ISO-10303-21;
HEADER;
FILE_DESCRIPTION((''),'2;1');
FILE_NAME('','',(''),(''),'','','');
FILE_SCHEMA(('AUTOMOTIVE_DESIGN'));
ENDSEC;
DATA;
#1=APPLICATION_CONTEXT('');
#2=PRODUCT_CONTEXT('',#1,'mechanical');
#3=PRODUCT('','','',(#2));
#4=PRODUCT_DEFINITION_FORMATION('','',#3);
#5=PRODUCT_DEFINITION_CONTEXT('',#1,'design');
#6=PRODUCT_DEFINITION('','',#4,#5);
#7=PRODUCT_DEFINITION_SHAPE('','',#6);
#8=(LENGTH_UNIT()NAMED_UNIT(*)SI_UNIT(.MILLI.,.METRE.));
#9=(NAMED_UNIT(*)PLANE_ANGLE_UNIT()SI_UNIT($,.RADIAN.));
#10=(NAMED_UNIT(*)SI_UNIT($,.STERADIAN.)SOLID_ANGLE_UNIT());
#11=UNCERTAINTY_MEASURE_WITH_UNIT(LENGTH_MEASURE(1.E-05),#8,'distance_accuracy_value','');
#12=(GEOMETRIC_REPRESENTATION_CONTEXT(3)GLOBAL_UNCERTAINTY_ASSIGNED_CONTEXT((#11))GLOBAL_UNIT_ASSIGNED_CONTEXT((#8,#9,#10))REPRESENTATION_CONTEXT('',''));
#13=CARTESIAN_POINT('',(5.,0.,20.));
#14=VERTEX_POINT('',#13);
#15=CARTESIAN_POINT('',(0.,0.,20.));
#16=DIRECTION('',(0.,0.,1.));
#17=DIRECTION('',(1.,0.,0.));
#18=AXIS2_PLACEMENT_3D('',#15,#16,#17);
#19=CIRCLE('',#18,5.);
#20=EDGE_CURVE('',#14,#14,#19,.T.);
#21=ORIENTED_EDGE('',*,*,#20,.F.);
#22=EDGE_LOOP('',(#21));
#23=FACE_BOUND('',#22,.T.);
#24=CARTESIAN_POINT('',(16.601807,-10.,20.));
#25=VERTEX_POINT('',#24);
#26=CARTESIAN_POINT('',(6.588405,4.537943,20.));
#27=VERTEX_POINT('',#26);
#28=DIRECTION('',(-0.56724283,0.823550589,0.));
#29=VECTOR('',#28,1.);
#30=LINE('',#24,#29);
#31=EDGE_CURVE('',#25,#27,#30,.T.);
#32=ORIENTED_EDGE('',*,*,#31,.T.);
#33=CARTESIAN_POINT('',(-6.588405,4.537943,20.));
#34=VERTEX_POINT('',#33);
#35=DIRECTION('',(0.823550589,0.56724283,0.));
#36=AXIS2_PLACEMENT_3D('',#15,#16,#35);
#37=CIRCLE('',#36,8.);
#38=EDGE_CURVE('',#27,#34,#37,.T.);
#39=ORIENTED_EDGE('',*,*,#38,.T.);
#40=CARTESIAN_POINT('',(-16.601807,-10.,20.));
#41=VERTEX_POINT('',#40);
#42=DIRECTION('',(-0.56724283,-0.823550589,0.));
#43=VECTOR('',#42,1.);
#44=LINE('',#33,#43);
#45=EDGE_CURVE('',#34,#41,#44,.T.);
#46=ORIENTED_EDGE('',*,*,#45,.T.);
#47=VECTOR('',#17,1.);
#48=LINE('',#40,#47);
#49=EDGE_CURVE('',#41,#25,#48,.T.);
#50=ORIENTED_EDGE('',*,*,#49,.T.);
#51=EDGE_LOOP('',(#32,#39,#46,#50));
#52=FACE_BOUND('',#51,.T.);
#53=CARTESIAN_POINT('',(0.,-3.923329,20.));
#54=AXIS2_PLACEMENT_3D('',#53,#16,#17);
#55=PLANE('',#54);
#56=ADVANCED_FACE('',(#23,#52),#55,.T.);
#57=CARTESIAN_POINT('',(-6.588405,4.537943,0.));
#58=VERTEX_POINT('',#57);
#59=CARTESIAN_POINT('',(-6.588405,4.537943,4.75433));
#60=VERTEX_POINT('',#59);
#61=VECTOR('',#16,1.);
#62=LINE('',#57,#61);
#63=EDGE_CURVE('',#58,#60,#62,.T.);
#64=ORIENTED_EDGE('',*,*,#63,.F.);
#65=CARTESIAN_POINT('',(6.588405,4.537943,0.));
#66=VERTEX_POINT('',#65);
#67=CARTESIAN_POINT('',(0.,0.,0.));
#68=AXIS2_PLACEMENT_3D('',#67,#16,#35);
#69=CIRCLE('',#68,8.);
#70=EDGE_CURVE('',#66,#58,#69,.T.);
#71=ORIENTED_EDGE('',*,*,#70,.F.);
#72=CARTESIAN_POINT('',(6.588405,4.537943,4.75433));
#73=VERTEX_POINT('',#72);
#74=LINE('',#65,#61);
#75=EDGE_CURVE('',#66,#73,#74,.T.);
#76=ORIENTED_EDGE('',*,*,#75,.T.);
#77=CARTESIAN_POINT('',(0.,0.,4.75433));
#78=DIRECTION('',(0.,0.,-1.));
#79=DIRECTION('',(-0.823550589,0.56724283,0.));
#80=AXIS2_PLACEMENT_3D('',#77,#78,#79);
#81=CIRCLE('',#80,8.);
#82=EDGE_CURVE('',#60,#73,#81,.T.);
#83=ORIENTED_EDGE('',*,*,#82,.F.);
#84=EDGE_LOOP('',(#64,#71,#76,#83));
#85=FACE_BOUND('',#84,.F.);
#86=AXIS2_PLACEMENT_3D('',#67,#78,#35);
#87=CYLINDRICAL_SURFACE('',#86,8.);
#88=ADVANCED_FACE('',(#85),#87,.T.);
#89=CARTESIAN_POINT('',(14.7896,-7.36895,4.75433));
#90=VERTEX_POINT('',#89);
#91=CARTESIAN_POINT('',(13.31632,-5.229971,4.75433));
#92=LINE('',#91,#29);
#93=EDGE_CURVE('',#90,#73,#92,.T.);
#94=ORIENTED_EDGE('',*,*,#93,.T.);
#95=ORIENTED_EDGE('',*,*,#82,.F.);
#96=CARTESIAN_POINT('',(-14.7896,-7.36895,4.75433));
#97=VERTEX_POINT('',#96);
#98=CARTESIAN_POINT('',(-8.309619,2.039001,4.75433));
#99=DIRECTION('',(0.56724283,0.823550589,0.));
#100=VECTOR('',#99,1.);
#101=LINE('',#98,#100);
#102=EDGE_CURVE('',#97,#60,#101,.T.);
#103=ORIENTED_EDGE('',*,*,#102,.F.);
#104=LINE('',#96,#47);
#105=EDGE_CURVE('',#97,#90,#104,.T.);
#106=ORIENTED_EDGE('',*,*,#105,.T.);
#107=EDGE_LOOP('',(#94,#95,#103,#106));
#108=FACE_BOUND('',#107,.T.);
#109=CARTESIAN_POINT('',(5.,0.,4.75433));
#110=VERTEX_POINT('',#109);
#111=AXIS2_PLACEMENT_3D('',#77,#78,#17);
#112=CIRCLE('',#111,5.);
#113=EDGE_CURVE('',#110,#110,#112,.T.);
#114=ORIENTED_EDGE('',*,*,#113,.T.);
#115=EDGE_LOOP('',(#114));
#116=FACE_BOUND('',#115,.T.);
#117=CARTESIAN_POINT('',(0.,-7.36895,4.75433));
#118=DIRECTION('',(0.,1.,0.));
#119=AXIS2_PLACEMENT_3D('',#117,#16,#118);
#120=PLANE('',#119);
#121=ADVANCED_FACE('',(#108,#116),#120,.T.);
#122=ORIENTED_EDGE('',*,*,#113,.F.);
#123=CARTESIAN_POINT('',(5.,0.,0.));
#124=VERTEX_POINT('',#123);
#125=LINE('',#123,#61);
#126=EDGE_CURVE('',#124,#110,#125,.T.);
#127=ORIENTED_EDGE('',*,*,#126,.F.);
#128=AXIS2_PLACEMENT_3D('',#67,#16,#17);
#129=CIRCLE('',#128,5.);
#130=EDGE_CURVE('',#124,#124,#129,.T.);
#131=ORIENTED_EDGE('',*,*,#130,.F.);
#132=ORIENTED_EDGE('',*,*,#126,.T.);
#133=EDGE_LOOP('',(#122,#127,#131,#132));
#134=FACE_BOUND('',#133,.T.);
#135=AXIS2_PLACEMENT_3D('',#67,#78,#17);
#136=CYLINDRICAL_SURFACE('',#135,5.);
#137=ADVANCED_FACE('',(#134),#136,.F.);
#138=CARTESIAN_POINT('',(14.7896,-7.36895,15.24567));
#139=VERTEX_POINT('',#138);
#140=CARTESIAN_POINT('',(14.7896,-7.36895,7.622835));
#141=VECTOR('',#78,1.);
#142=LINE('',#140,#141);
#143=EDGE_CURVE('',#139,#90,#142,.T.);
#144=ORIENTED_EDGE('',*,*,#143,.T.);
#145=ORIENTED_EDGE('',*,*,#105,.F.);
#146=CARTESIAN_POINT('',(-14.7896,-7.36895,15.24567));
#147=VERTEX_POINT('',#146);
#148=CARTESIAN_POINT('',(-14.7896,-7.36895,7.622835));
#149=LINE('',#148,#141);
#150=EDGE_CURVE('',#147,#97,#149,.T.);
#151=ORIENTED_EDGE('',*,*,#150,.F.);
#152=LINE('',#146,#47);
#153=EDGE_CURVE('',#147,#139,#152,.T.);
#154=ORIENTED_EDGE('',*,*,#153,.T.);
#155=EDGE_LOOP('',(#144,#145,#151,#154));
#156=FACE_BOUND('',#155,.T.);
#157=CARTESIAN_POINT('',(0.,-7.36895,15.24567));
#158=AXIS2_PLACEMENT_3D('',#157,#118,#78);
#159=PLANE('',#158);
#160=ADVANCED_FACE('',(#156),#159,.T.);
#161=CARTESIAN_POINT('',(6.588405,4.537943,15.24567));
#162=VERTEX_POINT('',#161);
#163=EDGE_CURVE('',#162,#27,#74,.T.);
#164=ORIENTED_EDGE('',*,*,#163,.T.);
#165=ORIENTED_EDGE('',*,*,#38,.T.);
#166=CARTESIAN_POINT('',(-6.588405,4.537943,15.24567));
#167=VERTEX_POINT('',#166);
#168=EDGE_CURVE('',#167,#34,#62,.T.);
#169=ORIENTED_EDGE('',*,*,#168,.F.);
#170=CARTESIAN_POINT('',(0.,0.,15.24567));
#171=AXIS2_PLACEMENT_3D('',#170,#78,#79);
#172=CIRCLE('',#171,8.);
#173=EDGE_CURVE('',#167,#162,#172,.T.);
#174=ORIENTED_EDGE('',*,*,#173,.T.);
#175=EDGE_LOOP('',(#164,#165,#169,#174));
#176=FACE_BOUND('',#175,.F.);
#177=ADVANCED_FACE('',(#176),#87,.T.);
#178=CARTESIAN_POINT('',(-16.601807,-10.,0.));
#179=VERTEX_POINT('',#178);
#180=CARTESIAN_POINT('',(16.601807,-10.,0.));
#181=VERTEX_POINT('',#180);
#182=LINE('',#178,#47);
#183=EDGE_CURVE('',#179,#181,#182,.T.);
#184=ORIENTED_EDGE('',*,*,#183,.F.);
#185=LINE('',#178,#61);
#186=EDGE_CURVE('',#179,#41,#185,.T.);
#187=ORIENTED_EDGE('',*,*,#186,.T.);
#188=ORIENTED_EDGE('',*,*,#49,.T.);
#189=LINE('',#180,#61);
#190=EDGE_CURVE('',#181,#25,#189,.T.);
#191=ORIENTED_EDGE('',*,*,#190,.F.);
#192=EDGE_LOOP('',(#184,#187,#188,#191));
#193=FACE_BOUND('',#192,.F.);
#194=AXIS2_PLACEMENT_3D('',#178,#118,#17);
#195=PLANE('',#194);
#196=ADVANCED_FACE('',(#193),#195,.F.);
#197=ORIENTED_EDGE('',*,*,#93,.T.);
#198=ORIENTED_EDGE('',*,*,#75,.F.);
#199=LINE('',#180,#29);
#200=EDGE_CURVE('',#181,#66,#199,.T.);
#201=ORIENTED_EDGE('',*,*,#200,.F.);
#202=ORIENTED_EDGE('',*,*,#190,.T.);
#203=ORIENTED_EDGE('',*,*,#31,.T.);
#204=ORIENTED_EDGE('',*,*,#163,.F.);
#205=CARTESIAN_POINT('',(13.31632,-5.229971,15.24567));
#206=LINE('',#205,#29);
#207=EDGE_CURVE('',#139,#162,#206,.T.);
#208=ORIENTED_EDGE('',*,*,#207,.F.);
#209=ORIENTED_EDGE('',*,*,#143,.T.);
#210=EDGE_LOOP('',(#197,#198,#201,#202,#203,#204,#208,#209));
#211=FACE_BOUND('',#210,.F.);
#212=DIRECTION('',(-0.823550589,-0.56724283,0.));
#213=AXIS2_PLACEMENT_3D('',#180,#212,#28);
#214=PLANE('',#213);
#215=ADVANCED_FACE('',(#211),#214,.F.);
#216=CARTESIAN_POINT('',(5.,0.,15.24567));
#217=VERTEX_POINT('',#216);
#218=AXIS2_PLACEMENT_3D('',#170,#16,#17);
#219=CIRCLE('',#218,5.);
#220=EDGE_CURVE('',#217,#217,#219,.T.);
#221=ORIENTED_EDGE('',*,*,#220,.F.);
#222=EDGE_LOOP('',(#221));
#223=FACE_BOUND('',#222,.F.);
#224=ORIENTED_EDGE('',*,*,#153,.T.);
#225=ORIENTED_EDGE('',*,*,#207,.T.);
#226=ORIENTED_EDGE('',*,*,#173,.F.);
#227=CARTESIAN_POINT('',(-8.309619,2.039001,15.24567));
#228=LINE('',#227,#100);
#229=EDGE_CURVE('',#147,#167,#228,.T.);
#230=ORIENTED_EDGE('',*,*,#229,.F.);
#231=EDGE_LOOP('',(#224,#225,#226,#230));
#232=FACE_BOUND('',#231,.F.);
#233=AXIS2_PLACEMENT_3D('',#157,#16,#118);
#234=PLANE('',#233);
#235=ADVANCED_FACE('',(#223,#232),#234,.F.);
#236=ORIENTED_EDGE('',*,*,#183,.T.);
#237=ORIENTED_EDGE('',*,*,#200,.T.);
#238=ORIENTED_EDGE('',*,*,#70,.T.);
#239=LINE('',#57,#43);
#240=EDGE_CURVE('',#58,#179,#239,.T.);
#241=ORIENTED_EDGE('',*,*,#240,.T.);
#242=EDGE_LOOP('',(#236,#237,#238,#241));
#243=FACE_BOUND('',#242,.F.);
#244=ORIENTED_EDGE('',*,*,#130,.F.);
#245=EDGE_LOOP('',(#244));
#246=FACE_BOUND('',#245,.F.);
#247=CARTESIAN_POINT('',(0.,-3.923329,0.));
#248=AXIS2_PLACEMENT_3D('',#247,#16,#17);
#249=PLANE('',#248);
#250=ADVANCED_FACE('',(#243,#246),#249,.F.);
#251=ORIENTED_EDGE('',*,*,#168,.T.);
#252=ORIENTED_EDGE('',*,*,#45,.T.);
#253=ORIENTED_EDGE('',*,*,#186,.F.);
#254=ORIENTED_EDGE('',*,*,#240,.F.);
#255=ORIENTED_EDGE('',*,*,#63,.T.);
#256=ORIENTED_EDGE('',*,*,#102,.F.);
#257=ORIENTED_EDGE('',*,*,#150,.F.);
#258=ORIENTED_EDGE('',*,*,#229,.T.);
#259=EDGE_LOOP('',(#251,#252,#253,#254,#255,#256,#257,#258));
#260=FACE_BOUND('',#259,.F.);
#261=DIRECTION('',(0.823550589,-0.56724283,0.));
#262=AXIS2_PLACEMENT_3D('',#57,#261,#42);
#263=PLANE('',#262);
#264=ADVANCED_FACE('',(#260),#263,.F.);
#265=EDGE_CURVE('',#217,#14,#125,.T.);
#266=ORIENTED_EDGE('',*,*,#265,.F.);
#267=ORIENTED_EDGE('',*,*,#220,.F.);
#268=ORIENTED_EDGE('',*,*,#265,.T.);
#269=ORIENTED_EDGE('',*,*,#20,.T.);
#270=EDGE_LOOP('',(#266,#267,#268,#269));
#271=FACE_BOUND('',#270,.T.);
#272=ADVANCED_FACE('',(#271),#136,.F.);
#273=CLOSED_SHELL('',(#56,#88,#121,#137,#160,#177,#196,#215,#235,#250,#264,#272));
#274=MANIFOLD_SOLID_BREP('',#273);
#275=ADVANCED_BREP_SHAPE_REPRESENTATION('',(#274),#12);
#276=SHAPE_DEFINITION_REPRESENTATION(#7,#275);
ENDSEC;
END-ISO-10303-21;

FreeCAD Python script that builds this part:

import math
import FreeCAD as App
import Part
import Sketcher

V = App.Vector
Q = App.Units.Quantity


def add_polygon(sketch, points):
    """Adds a closed chain of lines whose ends are joined by coincident constraints."""
    first, n = sketch.GeometryCount, len(points)
    for a, b in zip(points, points[1:] + points[:1]):
        sketch.addGeometry(Part.LineSegment(App.Vector(*a, 0), App.Vector(*b, 0)), False)
    for i in range(n):
        sketch.addConstraint(Sketcher.Constraint("Coincident", first + i, 2, first + (i + 1) % n, 1))

doc = App.newDocument("Part")
body = doc.addObject("PartDesign::Body", "Body")

# Sketch on XY plane
sketch1 = doc.addObject("Sketcher::SketchObject", "Sketch")
body.addObject(sketch1)
sketch1.AttachmentSupport = (doc.XY_Plane, [""])
sketch1.MapMode = "FlatFace"
sketch1.addGeometry([
    Part.LineSegment(V(17, -10, 0), V(7, 5, 0)),  # 0
    Part.ArcOfCircle(Part.Circle(V(0, 0, 0), V(0, 0, 1), 8), math.radians(35), math.radians(145)),  # 1
    Part.LineSegment(V(-7, 5, 0), V(-17, -10, 0)),  # 2
    Part.LineSegment(V(-17, -10, 0), V(17, -10, 0)),  # 3
    Part.Circle(V(0, 0, 0), V(0, 0, 1), 5),  # 4
], False)
sketch1.addConstraint([
    Sketcher.Constraint("Tangent", 0, 2, 1, 1),
    Sketcher.Constraint("Tangent", 1, 2, 2, 1),
    Sketcher.Constraint("Coincident", 2, 2, 3, 1),
    Sketcher.Constraint("Coincident", 3, 2, 0, 1),
    Sketcher.Constraint("Horizontal", 3),
    Sketcher.Constraint("Coincident", 1, 3, -1, 1),
    Sketcher.Constraint("Coincident", 4, 3, -1, 1),
    Sketcher.Constraint("Horizontal", 0, 2, 1, 2),
    Sketcher.Constraint("Diameter", 4, Q("10 mm")),
    Sketcher.Constraint("Radius", 1, Q("8 mm")),
    Sketcher.Constraint("DistanceY", 2, 2, -1, 1, Q("10 mm")),
    Sketcher.Constraint("DistanceX", 3, 1, 3, 2, Q("33.203615 mm")),
])
pad1 = doc.addObject("PartDesign::Pad", "Pad")
body.addObject(pad1)
pad1.Profile = sketch1
pad1.Length = 20

# Sketch on YZ plane
sketch2 = doc.addObject("Sketcher::SketchObject", "Sketch001")
body.addObject(sketch2)
sketch2.AttachmentSupport = (doc.YZ_Plane, [""])
sketch2.MapMode = "FlatFace"
add_polygon(sketch2, [(12, 15), (-7, 15), (-7, 5), (12, 5)])  # lines 0-3
sketch2.addConstraint([
    Sketcher.Constraint("Horizontal", 0),
    Sketcher.Constraint("Vertical", 1),
    Sketcher.Constraint("Horizontal", 2),
    Sketcher.Constraint("Vertical", 3),
    Sketcher.Constraint("DistanceY", 1, 2, 1, 1, Q("10.491339 mm")),
    Sketcher.Constraint("DistanceX", 0, 2, 0, 1, Q("19.291027 mm")),
    Sketcher.Constraint("DistanceX", 0, 2, -1, 1, Q("7.36895 mm")),
    Sketcher.Constraint("DistanceY", -1, 1, 0, 2, Q("15.24567 mm")),
])
pocket1 = doc.addObject("PartDesign::Pocket", "Pocket")
body.addObject(pocket1)
pocket1.Profile = sketch2
pocket1.Type = "ThroughAll"
pocket1.Midplane = True

doc.recompute()
